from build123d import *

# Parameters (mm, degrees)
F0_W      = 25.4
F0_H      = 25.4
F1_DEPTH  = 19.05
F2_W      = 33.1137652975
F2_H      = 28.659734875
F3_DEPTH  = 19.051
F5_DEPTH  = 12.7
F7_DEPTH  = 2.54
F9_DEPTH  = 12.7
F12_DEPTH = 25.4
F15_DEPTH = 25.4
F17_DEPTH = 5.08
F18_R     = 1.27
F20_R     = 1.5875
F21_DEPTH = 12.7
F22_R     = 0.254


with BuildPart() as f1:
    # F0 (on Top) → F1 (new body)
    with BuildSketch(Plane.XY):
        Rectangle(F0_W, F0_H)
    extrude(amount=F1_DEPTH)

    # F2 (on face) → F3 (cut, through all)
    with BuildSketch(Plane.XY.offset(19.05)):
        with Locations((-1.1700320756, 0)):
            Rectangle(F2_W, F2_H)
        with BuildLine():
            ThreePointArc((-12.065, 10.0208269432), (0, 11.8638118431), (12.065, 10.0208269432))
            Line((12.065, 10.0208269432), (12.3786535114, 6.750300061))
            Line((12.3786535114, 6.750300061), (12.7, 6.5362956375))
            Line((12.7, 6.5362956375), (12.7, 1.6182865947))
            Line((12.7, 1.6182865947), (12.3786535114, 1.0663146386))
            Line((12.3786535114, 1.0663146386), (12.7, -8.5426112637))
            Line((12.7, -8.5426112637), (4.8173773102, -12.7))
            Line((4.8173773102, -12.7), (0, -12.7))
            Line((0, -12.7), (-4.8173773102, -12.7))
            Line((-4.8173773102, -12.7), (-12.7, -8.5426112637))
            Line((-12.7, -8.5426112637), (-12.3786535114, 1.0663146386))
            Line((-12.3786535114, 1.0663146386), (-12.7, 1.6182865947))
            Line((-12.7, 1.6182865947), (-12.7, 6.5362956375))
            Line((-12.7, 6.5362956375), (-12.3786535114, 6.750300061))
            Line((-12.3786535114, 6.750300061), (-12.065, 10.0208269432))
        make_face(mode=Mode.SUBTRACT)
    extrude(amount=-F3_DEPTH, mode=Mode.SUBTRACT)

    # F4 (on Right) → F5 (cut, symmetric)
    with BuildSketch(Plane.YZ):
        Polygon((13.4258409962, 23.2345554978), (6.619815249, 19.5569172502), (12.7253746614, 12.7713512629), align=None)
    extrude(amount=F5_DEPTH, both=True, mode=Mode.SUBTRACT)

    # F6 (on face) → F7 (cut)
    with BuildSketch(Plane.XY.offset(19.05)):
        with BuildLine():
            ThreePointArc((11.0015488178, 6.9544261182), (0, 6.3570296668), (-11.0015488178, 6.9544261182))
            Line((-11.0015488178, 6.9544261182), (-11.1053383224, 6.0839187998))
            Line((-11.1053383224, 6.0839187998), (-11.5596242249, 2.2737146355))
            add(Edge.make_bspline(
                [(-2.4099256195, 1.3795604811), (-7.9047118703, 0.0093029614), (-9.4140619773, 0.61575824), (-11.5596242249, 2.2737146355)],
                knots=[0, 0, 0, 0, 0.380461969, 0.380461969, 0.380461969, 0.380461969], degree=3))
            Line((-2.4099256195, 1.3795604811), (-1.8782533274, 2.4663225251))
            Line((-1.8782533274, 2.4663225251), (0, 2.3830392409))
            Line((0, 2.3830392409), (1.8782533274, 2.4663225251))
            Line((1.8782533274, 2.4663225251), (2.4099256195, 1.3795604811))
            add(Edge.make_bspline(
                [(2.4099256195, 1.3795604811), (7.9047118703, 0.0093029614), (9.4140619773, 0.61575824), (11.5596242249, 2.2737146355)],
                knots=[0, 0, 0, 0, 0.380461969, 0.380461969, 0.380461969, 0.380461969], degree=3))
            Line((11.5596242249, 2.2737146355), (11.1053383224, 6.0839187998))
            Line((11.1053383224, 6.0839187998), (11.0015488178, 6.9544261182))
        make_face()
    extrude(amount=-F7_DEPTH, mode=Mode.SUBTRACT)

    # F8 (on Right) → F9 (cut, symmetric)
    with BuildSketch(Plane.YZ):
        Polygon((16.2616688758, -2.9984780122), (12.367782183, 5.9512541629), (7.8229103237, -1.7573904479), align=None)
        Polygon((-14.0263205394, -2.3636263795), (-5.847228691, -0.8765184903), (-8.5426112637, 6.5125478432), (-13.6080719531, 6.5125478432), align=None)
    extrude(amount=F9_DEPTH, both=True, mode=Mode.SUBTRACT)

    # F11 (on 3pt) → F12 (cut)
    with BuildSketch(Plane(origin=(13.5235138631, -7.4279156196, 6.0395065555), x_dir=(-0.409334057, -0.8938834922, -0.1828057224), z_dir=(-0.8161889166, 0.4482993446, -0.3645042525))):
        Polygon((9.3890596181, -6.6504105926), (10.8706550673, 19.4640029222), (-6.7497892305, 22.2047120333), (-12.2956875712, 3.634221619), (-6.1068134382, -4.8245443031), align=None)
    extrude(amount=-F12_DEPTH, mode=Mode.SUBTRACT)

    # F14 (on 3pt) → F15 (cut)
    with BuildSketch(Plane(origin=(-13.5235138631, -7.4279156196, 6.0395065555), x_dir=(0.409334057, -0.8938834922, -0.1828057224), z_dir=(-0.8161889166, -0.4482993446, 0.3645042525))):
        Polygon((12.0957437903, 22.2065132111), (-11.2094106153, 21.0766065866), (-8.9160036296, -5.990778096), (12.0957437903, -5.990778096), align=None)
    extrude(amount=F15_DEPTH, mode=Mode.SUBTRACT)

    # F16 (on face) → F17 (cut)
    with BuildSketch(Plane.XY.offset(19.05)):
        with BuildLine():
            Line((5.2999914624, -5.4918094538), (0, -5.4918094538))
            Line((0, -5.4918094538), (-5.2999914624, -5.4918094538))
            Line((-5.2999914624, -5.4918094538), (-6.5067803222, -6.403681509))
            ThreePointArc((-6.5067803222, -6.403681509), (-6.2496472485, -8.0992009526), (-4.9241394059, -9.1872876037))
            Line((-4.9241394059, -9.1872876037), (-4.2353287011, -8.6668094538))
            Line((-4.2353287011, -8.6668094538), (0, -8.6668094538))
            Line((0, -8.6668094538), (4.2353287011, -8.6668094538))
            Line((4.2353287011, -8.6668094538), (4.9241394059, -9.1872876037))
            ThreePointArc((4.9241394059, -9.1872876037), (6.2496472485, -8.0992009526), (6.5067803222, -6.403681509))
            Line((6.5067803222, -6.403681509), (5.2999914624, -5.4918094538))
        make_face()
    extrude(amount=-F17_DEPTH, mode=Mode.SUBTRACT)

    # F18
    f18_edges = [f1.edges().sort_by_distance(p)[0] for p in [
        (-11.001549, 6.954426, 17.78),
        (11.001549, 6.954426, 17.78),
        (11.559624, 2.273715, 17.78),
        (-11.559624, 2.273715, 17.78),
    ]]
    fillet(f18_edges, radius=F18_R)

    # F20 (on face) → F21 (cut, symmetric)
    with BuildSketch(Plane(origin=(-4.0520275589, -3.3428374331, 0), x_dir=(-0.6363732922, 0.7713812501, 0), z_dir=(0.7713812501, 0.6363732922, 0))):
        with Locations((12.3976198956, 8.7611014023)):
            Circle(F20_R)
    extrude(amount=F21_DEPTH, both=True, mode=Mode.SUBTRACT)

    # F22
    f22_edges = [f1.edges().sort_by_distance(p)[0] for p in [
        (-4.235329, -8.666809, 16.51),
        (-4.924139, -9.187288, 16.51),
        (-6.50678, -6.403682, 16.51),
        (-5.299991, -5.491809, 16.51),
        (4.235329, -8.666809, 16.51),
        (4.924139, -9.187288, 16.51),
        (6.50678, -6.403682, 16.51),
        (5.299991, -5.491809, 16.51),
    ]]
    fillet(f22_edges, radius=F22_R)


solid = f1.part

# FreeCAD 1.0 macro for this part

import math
import FreeCAD as App
import Part
import Sketcher
Q = App.Units.Quantity


def edges_at(feature, points):
    """Names of the edges that pass closest to the given points."""
    edges = feature.Shape.Edges
    near = lambda p: min(range(len(edges)), key=lambda i: edges[i].distToShape(Part.Vertex(*p))[0])
    return sorted({f"Edge{near(p) + 1}" for p in points})

doc = App.newDocument("Part")
body = doc.addObject("PartDesign::Body", "Body")

# Sketch on XY plane
sketch1 = doc.addObject("Sketcher::SketchObject", "Sketch")
body.addObject(sketch1)
sketch1.AttachmentSupport = (doc.XY_Plane, [""])
sketch1.MapMode = "FlatFace"
sketch1.addGeometry(Part.LineSegment(App.Vector(-13, 13, 0), App.Vector(-13, -13, 0)), False)
sketch1.addGeometry(Part.LineSegment(App.Vector(-13, -13, 0), App.Vector(13, -13, 0)), False)
sketch1.addGeometry(Part.LineSegment(App.Vector(13, -13, 0), App.Vector(13, 13, 0)), False)
sketch1.addGeometry(Part.LineSegment(App.Vector(13, 13, 0), App.Vector(-13, 13, 0)), False)
sketch1.addConstraint(Sketcher.Constraint("Coincident", 0, 2, 1, 1))
sketch1.addConstraint(Sketcher.Constraint("Coincident", 1, 2, 2, 1))
sketch1.addConstraint(Sketcher.Constraint("Coincident", 2, 2, 3, 1))
sketch1.addConstraint(Sketcher.Constraint("Coincident", 3, 2, 0, 1))
sketch1.addConstraint(Sketcher.Constraint("Vertical", 0))
sketch1.addConstraint(Sketcher.Constraint("Horizontal", 1))
sketch1.addConstraint(Sketcher.Constraint("Vertical", 2))
sketch1.addConstraint(Sketcher.Constraint("Horizontal", 3))
sketch1.addConstraint(Sketcher.Constraint("Symmetric", 0, 2, 2, 2, -1, 1))
sketch1.addConstraint(Sketcher.Constraint("Equal", 3, 0))
sketch1.addConstraint(Sketcher.Constraint("DistanceX", 1, 1, 1, 2, Q("1 in")))
pad1 = doc.addObject("PartDesign::Pad", "Pad")
body.addObject(pad1)
pad1.Profile = sketch1
pad1.Length = Q("0.75 in")

# Sketch on XY plane
sketch2 = doc.addObject("Sketcher::SketchObject", "Sketch001")
body.addObject(sketch2)
sketch2.AttachmentSupport = (doc.XY_Plane, [""])
sketch2.MapMode = "FlatFace"
sketch2.AttachmentOffset = App.Placement(App.Vector(0, 0, 0.75 * 25.4), App.Rotation())
sketch2.addGeometry(Part.LineSegment(App.Vector(-17.73, 14.33, 0), App.Vector(-17.73, -14.33, 0)), False)
sketch2.addGeometry(Part.LineSegment(App.Vector(-17.73, -14.33, 0), App.Vector(15.39, -14.33, 0)), False)
sketch2.addGeometry(Part.LineSegment(App.Vector(15.39, -14.33, 0), App.Vector(15.39, 14.33, 0)), False)
sketch2.addGeometry(Part.LineSegment(App.Vector(15.39, 14.33, 0), App.Vector(-17.73, 14.33, 0)), False)
sketch2.addGeometry(Part.LineSegment(App.Vector(-12.38, 6.75, 0), App.Vector(-12.06, 10.02, 0)), False)
sketch2.addGeometry(Part.ArcOfCircle(Part.Circle(App.Vector(0, -28.55, 0), App.Vector(0, 0, 1), 40.41), math.radians(73), math.radians(107)), False)
sketch2.addGeometry(Part.LineSegment(App.Vector(12.06, 10.02, 0), App.Vector(12.38, 6.75, 0)), False)
sketch2.addGeometry(Part.LineSegment(App.Vector(12.38, 6.75, 0), App.Vector(12.7, 6.54, 0)), False)
sketch2.addGeometry(Part.LineSegment(App.Vector(12.7, 6.54, 0), App.Vector(12.7, 1.62, 0)), False)
sketch2.addGeometry(Part.LineSegment(App.Vector(12.7, 1.62, 0), App.Vector(12.38, 1.07, 0)), False)
sketch2.addGeometry(Part.LineSegment(App.Vector(12.38, 1.07, 0), App.Vector(12.7, -8.54, 0)), False)
sketch2.addGeometry(Part.LineSegment(App.Vector(12.7, -8.54, 0), App.Vector(4.82, -12.7, 0)), False)
sketch2.addGeometry(Part.LineSegment(App.Vector(4.82, -12.7, 0), App.Vector(-4.82, -12.7, 0)), False)
sketch2.addGeometry(Part.LineSegment(App.Vector(-4.82, -12.7, 0), App.Vector(-12.7, -8.54, 0)), False)
sketch2.addGeometry(Part.LineSegment(App.Vector(-12.7, -8.54, 0), App.Vector(-12.38, 1.07, 0)), False)
sketch2.addGeometry(Part.LineSegment(App.Vector(-12.38, 1.07, 0), App.Vector(-12.7, 1.62, 0)), False)
sketch2.addGeometry(Part.LineSegment(App.Vector(-12.7, 1.62, 0), App.Vector(-12.7, 6.54, 0)), False)
sketch2.addGeometry(Part.LineSegment(App.Vector(-12.7, 6.54, 0), App.Vector(-12.38, 6.75, 0)), False)
sketch2.addConstraint(Sketcher.Constraint("Coincident", 0, 2, 1, 1))
sketch2.addConstraint(Sketcher.Constraint("Coincident", 1, 2, 2, 1))
sketch2.addConstraint(Sketcher.Constraint("Coincident", 2, 2, 3, 1))
sketch2.addConstraint(Sketcher.Constraint("Coincident", 3, 2, 0, 1))
sketch2.addConstraint(Sketcher.Constraint("Coincident", 4, 2, 5, 2))
sketch2.addConstraint(Sketcher.Constraint("Coincident", 5, 1, 6, 1))
sketch2.addConstraint(Sketcher.Constraint("Coincident", 6, 2, 7, 1))
sketch2.addConstraint(Sketcher.Constraint("Coincident", 7, 2, 8, 1))
sketch2.addConstraint(Sketcher.Constraint("Coincident", 8, 2, 9, 1))
sketch2.addConstraint(Sketcher.Constraint("Coincident", 9, 2, 10, 1))
sketch2.addConstraint(Sketcher.Constraint("Coincident", 10, 2, 11, 1))
sketch2.addConstraint(Sketcher.Constraint("Coincident", 11, 2, 12, 1))
sketch2.addConstraint(Sketcher.Constraint("Coincident", 12, 2, 13, 1))
sketch2.addConstraint(Sketcher.Constraint("Coincident", 13, 2, 14, 1))
sketch2.addConstraint(Sketcher.Constraint("Coincident", 14, 2, 15, 1))
sketch2.addConstraint(Sketcher.Constraint("Coincident", 15, 2, 16, 1))
sketch2.addConstraint(Sketcher.Constraint("Coincident", 16, 2, 17, 1))
sketch2.addConstraint(Sketcher.Constraint("Coincident", 17, 2, 4, 1))
sketch2.addConstraint(Sketcher.Constraint("Vertical", 0))
sketch2.addConstraint(Sketcher.Constraint("Horizontal", 1))
sketch2.addConstraint(Sketcher.Constraint("Vertical", 2))
sketch2.addConstraint(Sketcher.Constraint("Horizontal", 3))
sketch2.addConstraint(Sketcher.Constraint("Vertical", 8))
sketch2.addConstraint(Sketcher.Constraint("Horizontal", 12))
sketch2.addConstraint(Sketcher.Constraint("Vertical", 16))
sketch2.addConstraint(Sketcher.Constraint("Symmetric", 4, 2, 5, 1, -2))
sketch2.addConstraint(Sketcher.Constraint("Symmetric", 10, 2, 13, 2, -2))
sketch2.addConstraint(Sketcher.Constraint("Symmetric", 9, 2, 14, 2, -2))
sketch2.addConstraint(Sketcher.Constraint("Symmetric", 8, 2, 15, 2, -2))
sketch2.addConstraint(Sketcher.Constraint("Symmetric", 6, 2, 17, 2, -2))
sketch2.addConstraint(Sketcher.Constraint("Horizontal", 7, 2, 16, 2))
sketch2.addConstraint(Sketcher.Constraint("Vertical", 6, 2, 9, 2))
sketch2.addConstraint(Sketcher.Constraint("Vertical", 8, 2, 10, 2))
sketch2.addConstraint(Sketcher.Constraint("Equal", 11, 13))
sketch2.addConstraint(Sketcher.Constraint("DistanceX", -1, 1, 7, 2, Q("0.5 in")))
sketch2.addConstraint(Sketcher.Constraint("DistanceY", 11, 2, -1, 1, Q("0.5 in")))
sketch2.addConstraint(Sketcher.Constraint("DistanceX", 4, 2, 5, 1, Q("0.95 in")))
sketch2.addConstraint(Sketcher.Constraint("Distance", 7, Q("0.0152002 in")))
sketch2.addConstraint(Sketcher.Constraint("Radius", 5, 40.412924))
sketch2.addConstraint(Sketcher.Constraint("Distance", 9, 0.638699))
sketch2.addConstraint(Sketcher.Constraint("DistanceY", 8, 2, 8, 1, 4.918009))
sketch2.addConstraint(Sketcher.Constraint("DistanceY", -1, 1, 6, 2, 6.7503))
sketch2.addConstraint(Sketcher.Constraint("Distance", 11, 8.911769))
sketch2.addConstraint(Sketcher.Constraint("DistanceX", 1, 1, 1, 2, 33.113765))
sketch2.addConstraint(Sketcher.Constraint("DistanceX", 12, 2, 12, 1, 9.634755))
sketch2.addConstraint(Sketcher.Constraint("DistanceY", 0, 2, 0, 1, 28.659735))
sketch2.addConstraint(Sketcher.Constraint("DistanceX", -1, 1, 1, 2, 15.386851))
sketch2.addConstraint(Sketcher.Constraint("DistanceY", 5, 3, 2, 2, 42.87898))
sketch2.addConstraint(Sketcher.Constraint("DistanceX", 3, 2, 6, 2, 30.105568))
sketch2.addConstraint(Sketcher.Constraint("DistanceY", 7, 2, 5, 1, 3.484531))
pocket1 = doc.addObject("PartDesign::Pocket", "Pocket")
body.addObject(pocket1)
pocket1.Profile = sketch2
pocket1.Type = "ThroughAll"

# Sketch on YZ plane
sketch3 = doc.addObject("Sketcher::SketchObject", "Sketch002")
body.addObject(sketch3)
sketch3.AttachmentSupport = (doc.YZ_Plane, [""])
sketch3.MapMode = "FlatFace"
sketch3.addGeometry(Part.LineSegment(App.Vector(13, 23, 0), App.Vector(7, 20, 0)), False)
sketch3.addGeometry(Part.LineSegment(App.Vector(7, 20, 0), App.Vector(13, 13, 0)), False)
sketch3.addGeometry(Part.LineSegment(App.Vector(13, 13, 0), App.Vector(13, 23, 0)), False)
sketch3.addConstraint(Sketcher.Constraint("Coincident", 0, 2, 1, 1))
sketch3.addConstraint(Sketcher.Constraint("Coincident", 1, 2, 2, 1))
sketch3.addConstraint(Sketcher.Constraint("Coincident", 2, 2, 0, 1))
sketch3.addConstraint(Sketcher.Constraint("Angle", 2, Q("86.17001 deg")))
sketch3.addConstraint(Sketcher.Constraint("DistanceY", -1, 1, 1, 2, 12.771351))
sketch3.addConstraint(Sketcher.Constraint("DistanceX", -1, 1, 2, 2, 13.425841))
sketch3.addConstraint(Sketcher.Constraint("DistanceX", 0, 2, 1, 2, 6.105559))
sketch3.addConstraint(Sketcher.Constraint("DistanceY", 0, 2, 2, 2, 3.677638))
sketch3.addConstraint(Sketcher.Constraint("Distance", 0, 7.736085))
pocket2 = doc.addObject("PartDesign::Pocket", "Pocket001")
body.addObject(pocket2)
pocket2.Profile = sketch3
pocket2.Length = Q("1 in")
pocket2.Midplane = True

# Sketch on XY plane
sketch4 = doc.addObject("Sketcher::SketchObject", "Sketch003")
body.addObject(sketch4)
sketch4.AttachmentSupport = (doc.XY_Plane, [""])
sketch4.MapMode = "FlatFace"
sketch4.AttachmentOffset = App.Placement(App.Vector(0, 0, 0.75 * 25.4), App.Rotation())
sketch4.addGeometry(Part.ArcOfCircle(Part.Circle(App.Vector(0, 107.95703, 0), App.Vector(0, 0, 1), 101.6), math.radians(-96.216345), math.radians(-83.783655)), False)
sketch4.addGeometry(Part.LineSegment(App.Vector(-11.001549, 6.954426, 0), App.Vector(-11.105338, 6.083919, 0)), False)
sketch4.addGeometry(Part.LineSegment(App.Vector(-11.105338, 6.083919, 0), App.Vector(-11.559624, 2.273715, 0)), False)
sketch4.addGeometry(Part.BSplineCurve([App.Vector(-2.409926, 1.37956, 0), App.Vector(-7.904712, 0.009303, 0), App.Vector(-9.414062, 0.615758, 0), App.Vector(-11.559624, 2.273715, 0)], [4, 4], [0, 0.380461969], False, 3, [1, 1, 1, 1], False), False)
sketch4.addGeometry(Part.LineSegment(App.Vector(-2.409926, 1.37956, 0), App.Vector(-1.878253, 2.466323, 0)), False)
sketch4.addGeometry(Part.LineSegment(App.Vector(-1.878253, 2.466323, 0), App.Vector(0, 2.383039, 0)), False)
sketch4.addGeometry(Part.LineSegment(App.Vector(0, 2.383039, 0), App.Vector(1.878253, 2.466323, 0)), False)
sketch4.addGeometry(Part.LineSegment(App.Vector(1.878253, 2.466323, 0), App.Vector(2.409926, 1.37956, 0)), False)
sketch4.addGeometry(Part.BSplineCurve([App.Vector(2.409926, 1.37956, 0), App.Vector(7.904712, 0.009303, 0), App.Vector(9.414062, 0.615758, 0), App.Vector(11.559624, 2.273715, 0)], [4, 4], [0, 0.380461969], False, 3, [1, 1, 1, 1], False), False)
sketch4.addGeometry(Part.LineSegment(App.Vector(11.559624, 2.273715, 0), App.Vector(11.105338, 6.083919, 0)), False)
sketch4.addGeometry(Part.LineSegment(App.Vector(11.105338, 6.083919, 0), App.Vector(11.001549, 6.954426, 0)), False)
sketch4.addConstraint(Sketcher.Constraint("Block", 3))
sketch4.addConstraint(Sketcher.Constraint("Block", 8))
sketch4.addConstraint(Sketcher.Constraint("Coincident", 0, 1, 1, 1))
sketch4.addConstraint(Sketcher.Constraint("Coincident", 1, 2, 2, 1))
sketch4.addConstraint(Sketcher.Constraint("Coincident", 2, 2, 3, 2))
sketch4.addConstraint(Sketcher.Constraint("Coincident", 3, 1, 4, 1))
sketch4.addConstraint(Sketcher.Constraint("Coincident", 4, 2, 5, 1))
sketch4.addConstraint(Sketcher.Constraint("Coincident", 5, 2, 6, 1))
sketch4.addConstraint(Sketcher.Constraint("Coincident", 6, 2, 7, 1))
sketch4.addConstraint(Sketcher.Constraint("Coincident", 7, 2, 8, 1))
sketch4.addConstraint(Sketcher.Constraint("Coincident", 8, 2, 9, 1))
sketch4.addConstraint(Sketcher.Constraint("Coincident", 9, 2, 10, 1))
sketch4.addConstraint(Sketcher.Constraint("Coincident", 10, 2, 0, 2))
sketch4.addConstraint(Sketcher.Constraint("Symmetric", 4, 2, 6, 2, -2))
sketch4.addConstraint(Sketcher.Constraint("Symmetric", 1, 2, 9, 2, -2))
sketch4.addConstraint(Sketcher.Constraint("Symmetric", 0, 1, 10, 2, -2))
sketch4.addConstraint(Sketcher.Constraint("PointOnObject", 5, 2, -2))
sketch4.addConstraint(Sketcher.Constraint("Parallel", 1, 2))
sketch4.addConstraint(Sketcher.Constraint("Radius", 0, Q("4 in")))
sketch4.addConstraint(Sketcher.Constraint("Distance", 5, 1.880099))
sketch4.addConstraint(Sketcher.Constraint("Distance", 2, 3.837191))
sketch4.addConstraint(Sketcher.Constraint("DistanceY", -1, 1, 0, 3, 107.95703))
sketch4.addConstraint(Sketcher.Constraint("DistanceX", 0, 1, -1, 1, 11.001549))
sketch4.addConstraint(Sketcher.Constraint("DistanceY", -1, 1, 5, 2, 2.383039))
sketch4.addConstraint(Sketcher.Constraint("DistanceX", 2, 2, 4, 2, 9.681371))
pocket3 = doc.addObject("PartDesign::Pocket", "Pocket002")
body.addObject(pocket3)
pocket3.Profile = sketch4
pocket3.Length = Q("0.1 in")

# Sketch on YZ plane
sketch5 = doc.addObject("Sketcher::SketchObject", "Sketch004")
body.addObject(sketch5)
sketch5.AttachmentSupport = (doc.YZ_Plane, [""])
sketch5.MapMode = "FlatFace"
sketch5.addGeometry(Part.LineSegment(App.Vector(16, -3, 0), App.Vector(12, 6, 0)), False)
sketch5.addGeometry(Part.LineSegment(App.Vector(12, 6, 0), App.Vector(8, -2, 0)), False)
sketch5.addGeometry(Part.LineSegment(App.Vector(8, -2, 0), App.Vector(16, -3, 0)), False)
sketch5.addGeometry(Part.LineSegment(App.Vector(-14, -2, 0), App.Vector(-6, -1, 0)), False)
sketch5.addGeometry(Part.LineSegment(App.Vector(-6, -1, 0), App.Vector(-9, 7, 0)), False)
sketch5.addGeometry(Part.LineSegment(App.Vector(-9, 7, 0), App.Vector(-14, 7, 0)), False)
sketch5.addGeometry(Part.LineSegment(App.Vector(-14, 7, 0), App.Vector(-14, -2, 0)), False)
sketch5.addConstraint(Sketcher.Constraint("Coincident", 0, 2, 1, 1))
sketch5.addConstraint(Sketcher.Constraint("Coincident", 1, 2, 2, 1))
sketch5.addConstraint(Sketcher.Constraint("Coincident", 2, 2, 0, 1))
sketch5.addConstraint(Sketcher.Constraint("Coincident", 3, 2, 4, 1))
sketch5.addConstraint(Sketcher.Constraint("Coincident", 4, 2, 5, 1))
sketch5.addConstraint(Sketcher.Constraint("Coincident", 5, 2, 6, 1))
sketch5.addConstraint(Sketcher.Constraint("Coincident", 6, 2, 3, 1))
sketch5.addConstraint(Sketcher.Constraint("Horizontal", 5))
sketch5.addConstraint(Sketcher.Constraint("DistanceX", 5, 2, 5, 1, 5.065461))
sketch5.addConstraint(Sketcher.Constraint("Distance", 1, 8.948691))
sketch5.addConstraint(Sketcher.Constraint("Distance", 4, 7.865328))
sketch5.addConstraint(Sketcher.Constraint("DistanceX", -1, 1, 1, 2, 7.82291))
sketch5.addConstraint(Sketcher.Constraint("DistanceY", 1, 2, -1, 1, 1.75739))
sketch5.addConstraint(Sketcher.Constraint("DistanceX", -1, 1, 2, 2, 16.261669))
sketch5.addConstraint(Sketcher.Constraint("DistanceY", 2, 2, -1, 1, 2.998478))
sketch5.addConstraint(Sketcher.Constraint("DistanceX", 3, 2, -1, 1, 5.847229))
sketch5.addConstraint(Sketcher.Constraint("DistanceY", 3, 2, -1, 1, 0.876518))
sketch5.addConstraint(Sketcher.Constraint("DistanceX", 4, 2, -1, 1, 8.542611))
sketch5.addConstraint(Sketcher.Constraint("DistanceX", 6, 2, -1, 1, 14.026321))
sketch5.addConstraint(Sketcher.Constraint("DistanceX", 1, 2, 0, 2, 4.544872))
sketch5.addConstraint(Sketcher.Constraint("DistanceY", 6, 2, 0, 2, 8.314881))
pocket4 = doc.addObject("PartDesign::Pocket", "Pocket003")
body.addObject(pocket4)
pocket4.Profile = sketch5
pocket4.Length = Q("1 in")
pocket4.Midplane = True

# Sketch on an angled plane
sketch6 = doc.addObject("Sketcher::SketchObject", "Sketch005")
body.addObject(sketch6)
sketch6.Placement = App.Placement(App.Vector(13.523514, -7.427916, 6.039507), App.Rotation(App.Vector(-0.409334057, -0.893883492, -0.182805722), App.Vector(-0.407776019, 0, 0.913081989), App.Vector(-0.816188917, 0.448299345, -0.364504252), "ZXY"))
sketch6.addGeometry(Part.LineSegment(App.Vector(9, -7, 0), App.Vector(11, 19, 0)), False)
sketch6.addGeometry(Part.LineSegment(App.Vector(11, 19, 0), App.Vector(-7, 22, 0)), False)
sketch6.addGeometry(Part.LineSegment(App.Vector(-7, 22, 0), App.Vector(-12, 4, 0)), False)
sketch6.addGeometry(Part.LineSegment(App.Vector(-12, 4, 0), App.Vector(-6, -5, 0)), False)
sketch6.addGeometry(Part.LineSegment(App.Vector(-6, -5, 0), App.Vector(9, -7, 0)), False)
sketch6.addConstraint(Sketcher.Constraint("Coincident", 0, 2, 1, 1))
sketch6.addConstraint(Sketcher.Constraint("Coincident", 1, 2, 2, 1))
sketch6.addConstraint(Sketcher.Constraint("Coincident", 2, 2, 3, 1))
sketch6.addConstraint(Sketcher.Constraint("Coincident", 3, 2, 4, 1))
sketch6.addConstraint(Sketcher.Constraint("Coincident", 4, 2, 0, 1))
sketch6.addConstraint(Sketcher.Constraint("DistanceX", 2, 2, 1, 2, 5.545898))
sketch6.addConstraint(Sketcher.Constraint("Distance", 0, 26.156409))
sketch6.addConstraint(Sketcher.Constraint("Distance", 2, 19.380921))
sketch6.addConstraint(Sketcher.Constraint("DistanceX", 1, 2, -1, 1, 6.749789))
sketch6.addConstraint(Sketcher.Constraint("DistanceY", -1, 1, 2, 2, 3.634222))
sketch6.addConstraint(Sketcher.Constraint("DistanceX", -1, 1, 4, 2, 9.38906))
sketch6.addConstraint(Sketcher.Constraint("DistanceY", 4, 2, -1, 1, 6.650411))
sketch6.addConstraint(Sketcher.Constraint("DistanceY", 0, 2, 1, 2, 2.740709))
sketch6.addConstraint(Sketcher.Constraint("DistanceX", 3, 2, 0, 2, 16.977468))
sketch6.addConstraint(Sketcher.Constraint("Distance", 3, 10.481073))
pocket5 = doc.addObject("PartDesign::Pocket", "Pocket004")
body.addObject(pocket5)
pocket5.Profile = sketch6
pocket5.Length = Q("1 in")

# Sketch on an angled plane
sketch7 = doc.addObject("Sketcher::SketchObject", "Sketch006")
body.addObject(sketch7)
sketch7.Placement = App.Placement(App.Vector(-13.523514, -7.427916, 6.039507), App.Rotation(App.Vector(0.409334057, -0.893883492, -0.182805722), App.Vector(0.407776019, 0, 0.913081989), App.Vector(-0.816188917, -0.448299345, 0.364504252), "ZXY"))
sketch7.addGeometry(Part.LineSegment(App.Vector(12, 22, 0), App.Vector(-11, 21, 0)), False)
sketch7.addGeometry(Part.LineSegment(App.Vector(-11, 21, 0), App.Vector(-9, -6, 0)), False)
sketch7.addGeometry(Part.LineSegment(App.Vector(-9, -6, 0), App.Vector(12, -6, 0)), False)
sketch7.addGeometry(Part.LineSegment(App.Vector(12, -6, 0), App.Vector(12, 22, 0)), False)
sketch7.addConstraint(Sketcher.Constraint("Coincident", 0, 2, 1, 1))
sketch7.addConstraint(Sketcher.Constraint("Coincident", 1, 2, 2, 1))
sketch7.addConstraint(Sketcher.Constraint("Coincident", 2, 2, 3, 1))
sketch7.addConstraint(Sketcher.Constraint("Coincident", 3, 2, 0, 1))
sketch7.addConstraint(Sketcher.Constraint("Horizontal", 2))
sketch7.addConstraint(Sketcher.Constraint("Vertical", 3))
sketch7.addConstraint(Sketcher.Constraint("DistanceY", 3, 1, 3, 2, 28.197291))
sketch7.addConstraint(Sketcher.Constraint("Distance", 0, 23.332529))
sketch7.addConstraint(Sketcher.Constraint("Distance", 1, 27.164371))
sketch7.addConstraint(Sketcher.Constraint("DistanceX", 2, 1, 2, 2, 21.011747))
sketch7.addConstraint(Sketcher.Constraint("DistanceX", 0, 2, -1, 1, 11.209411))
sketch7.addConstraint(Sketcher.Constraint("DistanceY", 1, 2, -1, 1, 5.990778))
pocket6 = doc.addObject("PartDesign::Pocket", "Pocket005")
body.addObject(pocket6)
pocket6.Profile = sketch7
pocket6.Length = Q("1 in")
pocket6.Reversed = True

# Sketch on XY plane
sketch8 = doc.addObject("Sketcher::SketchObject", "Sketch007")
body.addObject(sketch8)
sketch8.AttachmentSupport = (doc.XY_Plane, [""])
sketch8.MapMode = "FlatFace"
sketch8.AttachmentOffset = App.Placement(App.Vector(0, 0, 0.75 * 25.4), App.Rotation())
sketch8.addGeometry(Part.LineSegment(App.Vector(5.3, -5.5, 0), App.Vector(-5.3, -5.5, 0)), False)
sketch8.addGeometry(Part.LineSegment(App.Vector(-5.3, -5.5, 0), App.Vector(-6.5, -6.4, 0)), False)
sketch8.addGeometry(Part.ArcOfCircle(Part.Circle(App.Vector(-4.2, -6.9, 0), App.Vector(0, 0, 1), 2.4), math.radians(168), math.radians(252)), False)
sketch8.addGeometry(Part.LineSegment(App.Vector(-4.9, -9.2, 0), App.Vector(-4.2, -8.7, 0)), False)
sketch8.addGeometry(Part.LineSegment(App.Vector(-4.2, -8.7, 0), App.Vector(4.2, -8.7, 0)), False)
sketch8.addGeometry(Part.LineSegment(App.Vector(4.2, -8.7, 0), App.Vector(4.9, -9.2, 0)), False)
sketch8.addGeometry(Part.ArcOfCircle(Part.Circle(App.Vector(4.2, -6.9, 0), App.Vector(0, 0, 1), 2.4), math.radians(-72), math.radians(12)), False)
sketch8.addGeometry(Part.LineSegment(App.Vector(6.5, -6.4, 0), App.Vector(5.3, -5.5, 0)), False)
sketch8.addConstraint(Sketcher.Constraint("Coincident", 0, 2, 1, 1))
sketch8.addConstraint(Sketcher.Constraint("Coincident", 1, 2, 2, 1))
sketch8.addConstraint(Sketcher.Constraint("Coincident", 2, 2, 3, 1))
sketch8.addConstraint(Sketcher.Constraint("Coincident", 3, 2, 4, 1))
sketch8.addConstraint(Sketcher.Constraint("Coincident", 4, 2, 5, 1))
sketch8.addConstraint(Sketcher.Constraint("Coincident", 5, 2, 6, 1))
sketch8.addConstraint(Sketcher.Constraint("Coincident", 6, 2, 7, 1))
sketch8.addConstraint(Sketcher.Constraint("Coincident", 7, 2, 0, 1))
sketch8.addConstraint(Sketcher.Constraint("Horizontal", 0))
sketch8.addConstraint(Sketcher.Constraint("Horizontal", 4))
sketch8.addConstraint(Sketcher.Constraint("Equal", 2, 6))
sketch8.addConstraint(Sketcher.Constraint("Symmetric", 2, 3, 6, 3, -2))
sketch8.addConstraint(Sketcher.Constraint("Parallel", 1, 3))
sketch8.addConstraint(Sketcher.Constraint("Parallel", 5, 7))
sketch8.addConstraint(Sketcher.Constraint("Horizontal", 2, 2, 5, 2))
sketch8.addConstraint(Sketcher.Constraint("Horizontal", 1, 2, 6, 2))
sketch8.addConstraint(Sketcher.Constraint("Equal", 3, 5))
sketch8.addConstraint(Sketcher.Constraint("DistanceY", 3, 2, 0, 2, Q("0.125 in")))
sketch8.addConstraint(Sketcher.Constraint("Radius", 2, 2.392957))
sketch8.addConstraint(Sketcher.Constraint("DistanceX", 2, 3, 6, 3, Q("0.3283001 in")))
sketch8.addConstraint(Sketcher.Constraint("Distance", 3, 0.863341))
sketch8.addConstraint(Sketcher.Constraint("DistanceX", 0, 2, 0, 1, 10.599983))
sketch8.addConstraint(Sketcher.Constraint("DistanceX", 4, 1, 4, 2, 8.470657))
sketch8.addConstraint(Sketcher.Constraint("DistanceY", 0, 2, -1, 1, 5.491809))
sketch8.addConstraint(Sketcher.Constraint("DistanceX", 1, 2, -1, 1, 6.50678))
pocket7 = doc.addObject("PartDesign::Pocket", "Pocket006")
body.addObject(pocket7)
pocket7.Profile = sketch8
pocket7.Length = Q("0.2 in")
doc.recompute()

fillet = doc.addObject("PartDesign::Fillet", "Fillet")
body.addObject(fillet)
fillet.Base = (pocket7, edges_at(pocket7, [
    (-11.002, 6.954, 17.78),
    (11.002, 6.954, 17.78),
    (11.56, 2.274, 17.78),
    (-11.56, 2.274, 17.78),
]))
fillet.Radius = Q("0.05 in")

# Sketch on an angled plane
sketch9 = doc.addObject("Sketcher::SketchObject", "Sketch008")
body.addObject(sketch9)
sketch9.Placement = App.Placement(App.Vector(-4.052028, -3.342837, 0), App.Rotation(App.Vector(-0.636373292, 0.77138125, 0), App.Vector(0, 0, 1), App.Vector(0.77138125, 0.636373292, 0), "ZXY"))
sketch9.addGeometry(Part.Circle(App.Vector(12.4, 8.8, 0), App.Vector(0, 0, 1), 1.6), False)
sketch9.addConstraint(Sketcher.Constraint("Diameter", 0, Q("0.125 in")))
sketch9.addConstraint(Sketcher.Constraint("DistanceY", -1, 1, 0, 3, 8.761101))
sketch9.addConstraint(Sketcher.Constraint("DistanceX", -1, 1, 0, 3, 12.39762))
pocket8 = doc.addObject("PartDesign::Pocket", "Pocket007")
body.addObject(pocket8)
pocket8.Profile = sketch9
pocket8.Length = Q("1 in")
pocket8.Midplane = True
doc.recompute()

fillet2 = doc.addObject("PartDesign::Fillet", "Fillet001")
body.addObject(fillet2)
fillet2.Base = (pocket8, edges_at(pocket8, [
    (-4.235, -8.667, 16.51),
    (-4.924, -9.187, 16.51),
    (-6.507, -6.404, 16.51),
    (-5.3, -5.492, 16.51),
    (4.235, -8.667, 16.51),
    (4.924, -9.187, 16.51),
    (6.507, -6.404, 16.51),
    (5.3, -5.492, 16.51),
]))
fillet2.Radius = Q("0.01 in")

doc.recompute()
